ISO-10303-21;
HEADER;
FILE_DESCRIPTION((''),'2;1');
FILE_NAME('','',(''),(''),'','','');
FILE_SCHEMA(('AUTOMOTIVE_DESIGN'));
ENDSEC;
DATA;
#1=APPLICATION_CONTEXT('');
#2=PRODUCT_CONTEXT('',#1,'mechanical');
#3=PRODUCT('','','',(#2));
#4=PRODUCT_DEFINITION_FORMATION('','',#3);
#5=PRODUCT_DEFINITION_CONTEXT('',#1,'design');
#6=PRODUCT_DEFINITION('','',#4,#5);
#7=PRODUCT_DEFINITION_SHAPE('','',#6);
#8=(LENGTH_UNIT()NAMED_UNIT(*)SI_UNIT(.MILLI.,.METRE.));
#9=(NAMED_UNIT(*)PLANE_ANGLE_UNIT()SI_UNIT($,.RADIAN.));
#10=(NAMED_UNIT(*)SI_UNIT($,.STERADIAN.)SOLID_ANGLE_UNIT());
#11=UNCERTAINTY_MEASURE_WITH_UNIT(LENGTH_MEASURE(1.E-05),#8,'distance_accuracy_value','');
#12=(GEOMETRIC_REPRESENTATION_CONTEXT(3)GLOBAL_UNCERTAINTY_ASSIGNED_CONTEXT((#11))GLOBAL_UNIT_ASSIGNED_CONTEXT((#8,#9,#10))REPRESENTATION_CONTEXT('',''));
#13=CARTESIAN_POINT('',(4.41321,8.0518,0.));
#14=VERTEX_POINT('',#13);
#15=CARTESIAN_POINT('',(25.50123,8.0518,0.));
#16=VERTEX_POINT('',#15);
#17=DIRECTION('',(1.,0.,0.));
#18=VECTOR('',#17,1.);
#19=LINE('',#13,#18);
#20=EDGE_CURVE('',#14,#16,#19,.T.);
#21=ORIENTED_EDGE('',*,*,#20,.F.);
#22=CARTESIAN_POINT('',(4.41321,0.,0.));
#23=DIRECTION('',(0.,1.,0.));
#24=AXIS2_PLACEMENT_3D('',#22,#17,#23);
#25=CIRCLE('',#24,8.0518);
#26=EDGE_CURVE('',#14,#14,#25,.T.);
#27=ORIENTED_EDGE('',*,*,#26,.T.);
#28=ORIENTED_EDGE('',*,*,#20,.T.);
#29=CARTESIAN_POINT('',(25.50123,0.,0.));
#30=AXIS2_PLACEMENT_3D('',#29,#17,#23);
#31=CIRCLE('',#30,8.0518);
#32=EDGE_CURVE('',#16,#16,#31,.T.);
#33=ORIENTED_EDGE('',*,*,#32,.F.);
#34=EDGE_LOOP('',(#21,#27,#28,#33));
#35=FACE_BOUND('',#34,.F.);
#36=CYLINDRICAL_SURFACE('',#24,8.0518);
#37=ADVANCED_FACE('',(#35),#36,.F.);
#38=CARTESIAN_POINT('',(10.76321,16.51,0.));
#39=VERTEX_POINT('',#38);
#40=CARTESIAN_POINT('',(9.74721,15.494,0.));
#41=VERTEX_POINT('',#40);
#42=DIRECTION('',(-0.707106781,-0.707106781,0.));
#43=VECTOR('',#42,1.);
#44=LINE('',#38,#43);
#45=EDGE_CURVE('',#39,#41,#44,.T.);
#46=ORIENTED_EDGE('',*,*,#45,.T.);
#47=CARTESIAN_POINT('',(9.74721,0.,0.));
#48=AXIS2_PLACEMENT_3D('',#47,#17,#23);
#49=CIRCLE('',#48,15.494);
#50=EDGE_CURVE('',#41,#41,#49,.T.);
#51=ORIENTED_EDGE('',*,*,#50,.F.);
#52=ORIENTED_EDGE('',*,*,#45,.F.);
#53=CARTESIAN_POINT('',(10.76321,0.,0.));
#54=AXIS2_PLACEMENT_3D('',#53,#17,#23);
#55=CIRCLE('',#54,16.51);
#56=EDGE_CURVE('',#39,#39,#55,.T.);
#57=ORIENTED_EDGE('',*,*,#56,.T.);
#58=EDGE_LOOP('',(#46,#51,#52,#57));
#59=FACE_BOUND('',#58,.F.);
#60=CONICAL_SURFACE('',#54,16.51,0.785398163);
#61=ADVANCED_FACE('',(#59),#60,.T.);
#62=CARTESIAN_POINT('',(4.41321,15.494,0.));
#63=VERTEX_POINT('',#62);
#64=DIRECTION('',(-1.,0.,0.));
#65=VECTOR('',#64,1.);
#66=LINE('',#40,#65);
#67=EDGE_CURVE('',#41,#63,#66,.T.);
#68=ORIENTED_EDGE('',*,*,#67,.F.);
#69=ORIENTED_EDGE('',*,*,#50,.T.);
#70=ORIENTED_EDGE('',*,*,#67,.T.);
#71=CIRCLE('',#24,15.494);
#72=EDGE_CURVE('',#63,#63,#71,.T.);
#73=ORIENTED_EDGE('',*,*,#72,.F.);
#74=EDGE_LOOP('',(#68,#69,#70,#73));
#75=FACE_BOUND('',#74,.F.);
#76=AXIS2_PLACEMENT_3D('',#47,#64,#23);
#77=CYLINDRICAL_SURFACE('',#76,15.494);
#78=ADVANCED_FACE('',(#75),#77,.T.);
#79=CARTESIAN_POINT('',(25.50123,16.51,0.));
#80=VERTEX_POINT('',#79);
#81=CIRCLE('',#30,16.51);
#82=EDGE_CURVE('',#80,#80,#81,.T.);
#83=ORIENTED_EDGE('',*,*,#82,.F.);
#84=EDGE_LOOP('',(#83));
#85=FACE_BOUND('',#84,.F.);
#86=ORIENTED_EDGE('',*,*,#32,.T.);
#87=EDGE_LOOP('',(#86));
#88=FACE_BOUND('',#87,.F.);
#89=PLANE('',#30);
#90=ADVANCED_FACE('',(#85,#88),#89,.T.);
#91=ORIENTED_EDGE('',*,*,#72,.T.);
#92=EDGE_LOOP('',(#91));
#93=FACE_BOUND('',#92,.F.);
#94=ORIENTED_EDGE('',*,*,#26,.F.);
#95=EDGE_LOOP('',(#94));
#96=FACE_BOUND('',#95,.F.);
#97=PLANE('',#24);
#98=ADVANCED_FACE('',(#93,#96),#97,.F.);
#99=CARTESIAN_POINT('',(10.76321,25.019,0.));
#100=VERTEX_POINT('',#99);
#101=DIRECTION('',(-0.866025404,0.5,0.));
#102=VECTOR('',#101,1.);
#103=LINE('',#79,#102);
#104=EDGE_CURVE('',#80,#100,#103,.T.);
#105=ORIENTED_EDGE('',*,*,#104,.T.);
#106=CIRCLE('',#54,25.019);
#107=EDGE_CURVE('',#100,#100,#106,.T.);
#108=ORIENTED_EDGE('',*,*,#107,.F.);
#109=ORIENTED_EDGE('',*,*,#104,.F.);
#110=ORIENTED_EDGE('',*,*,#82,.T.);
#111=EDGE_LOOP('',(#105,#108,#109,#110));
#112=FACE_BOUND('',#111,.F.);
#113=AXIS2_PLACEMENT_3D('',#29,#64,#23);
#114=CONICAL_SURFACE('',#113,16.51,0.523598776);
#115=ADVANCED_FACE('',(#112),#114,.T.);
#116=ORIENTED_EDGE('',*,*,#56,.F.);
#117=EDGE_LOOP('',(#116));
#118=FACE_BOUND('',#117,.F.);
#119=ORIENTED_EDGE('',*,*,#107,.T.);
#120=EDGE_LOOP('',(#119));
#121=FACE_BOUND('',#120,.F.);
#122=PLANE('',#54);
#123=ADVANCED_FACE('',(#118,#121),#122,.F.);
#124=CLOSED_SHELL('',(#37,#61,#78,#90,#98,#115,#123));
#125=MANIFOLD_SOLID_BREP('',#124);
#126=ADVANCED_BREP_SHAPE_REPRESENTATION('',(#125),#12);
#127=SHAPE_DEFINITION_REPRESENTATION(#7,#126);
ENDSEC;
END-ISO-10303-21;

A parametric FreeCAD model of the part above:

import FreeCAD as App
import Part
import Sketcher
from FreeCAD import Vector
Q = App.Units.Quantity


def add_polygon(sketch, points):
    """Adds a closed chain of lines whose ends are joined by coincident constraints."""
    first, n = sketch.GeometryCount, len(points)
    for a, b in zip(points, points[1:] + points[:1]):
        sketch.addGeometry(Part.LineSegment(App.Vector(*a, 0), App.Vector(*b, 0)), False)
    for i in range(n):
        sketch.addConstraint(Sketcher.Constraint("Coincident", first + i, 2, first + (i + 1) % n, 1))

doc = App.newDocument("Part")
body = doc.addObject("PartDesign::Body", "Body")

# Sketch on XY plane
sketch1 = doc.addObject("Sketcher::SketchObject", "Sketch")
body.addObject(sketch1)
sketch1.AttachmentSupport = (doc.XY_Plane, [""])
sketch1.MapMode = "FlatFace"
add_polygon(sketch1, [(4.41321, 8.0518), (25.50123, 8.0518), (25.50123, 16.51), (10.76321, 25.019), (10.76321, 16.51), (9.74721, 15.494), (4.41321, 15.494)])  # lines 0-6
sketch1.addConstraint([
    Sketcher.Constraint("Horizontal", 0),
    Sketcher.Constraint("Vertical", 1),
    Sketcher.Constraint("Vertical", 3),
    Sketcher.Constraint("Horizontal", 5),
    Sketcher.Constraint("Vertical", 6),
    Sketcher.Constraint("Horizontal", 1, 2, 3, 2),
    Sketcher.Constraint("Angle", 2, Q("150 deg")),
    Sketcher.Constraint("Angle", 4, Q("-135 deg")),
    Sketcher.Constraint("DistanceX", 5, 2, 5, 1, Q("0.21 in")),
    Sketcher.Constraint("Distance", 2, Q("0.67 in")),
    Sketcher.Constraint("DistanceY", 1, 1, 1, 2, Q("0.333 in")),
    Sketcher.Constraint("DistanceY", 6, 2, 6, 1, Q("0.293 in")),
    Sketcher.Constraint("DistanceY", -1, 1, 1, 2, Q("0.65 in")),
    Sketcher.Constraint("DistanceX", -1, 1, 0, 2, 25.50123),
])
revolution = doc.addObject("PartDesign::Revolution", "Revolution")
body.addObject(revolution)
revolution.Profile = sketch1
revolution.ReferenceAxis = (sketch1, ["H_Axis"])
revolution.Angle = 360

doc.recompute()
